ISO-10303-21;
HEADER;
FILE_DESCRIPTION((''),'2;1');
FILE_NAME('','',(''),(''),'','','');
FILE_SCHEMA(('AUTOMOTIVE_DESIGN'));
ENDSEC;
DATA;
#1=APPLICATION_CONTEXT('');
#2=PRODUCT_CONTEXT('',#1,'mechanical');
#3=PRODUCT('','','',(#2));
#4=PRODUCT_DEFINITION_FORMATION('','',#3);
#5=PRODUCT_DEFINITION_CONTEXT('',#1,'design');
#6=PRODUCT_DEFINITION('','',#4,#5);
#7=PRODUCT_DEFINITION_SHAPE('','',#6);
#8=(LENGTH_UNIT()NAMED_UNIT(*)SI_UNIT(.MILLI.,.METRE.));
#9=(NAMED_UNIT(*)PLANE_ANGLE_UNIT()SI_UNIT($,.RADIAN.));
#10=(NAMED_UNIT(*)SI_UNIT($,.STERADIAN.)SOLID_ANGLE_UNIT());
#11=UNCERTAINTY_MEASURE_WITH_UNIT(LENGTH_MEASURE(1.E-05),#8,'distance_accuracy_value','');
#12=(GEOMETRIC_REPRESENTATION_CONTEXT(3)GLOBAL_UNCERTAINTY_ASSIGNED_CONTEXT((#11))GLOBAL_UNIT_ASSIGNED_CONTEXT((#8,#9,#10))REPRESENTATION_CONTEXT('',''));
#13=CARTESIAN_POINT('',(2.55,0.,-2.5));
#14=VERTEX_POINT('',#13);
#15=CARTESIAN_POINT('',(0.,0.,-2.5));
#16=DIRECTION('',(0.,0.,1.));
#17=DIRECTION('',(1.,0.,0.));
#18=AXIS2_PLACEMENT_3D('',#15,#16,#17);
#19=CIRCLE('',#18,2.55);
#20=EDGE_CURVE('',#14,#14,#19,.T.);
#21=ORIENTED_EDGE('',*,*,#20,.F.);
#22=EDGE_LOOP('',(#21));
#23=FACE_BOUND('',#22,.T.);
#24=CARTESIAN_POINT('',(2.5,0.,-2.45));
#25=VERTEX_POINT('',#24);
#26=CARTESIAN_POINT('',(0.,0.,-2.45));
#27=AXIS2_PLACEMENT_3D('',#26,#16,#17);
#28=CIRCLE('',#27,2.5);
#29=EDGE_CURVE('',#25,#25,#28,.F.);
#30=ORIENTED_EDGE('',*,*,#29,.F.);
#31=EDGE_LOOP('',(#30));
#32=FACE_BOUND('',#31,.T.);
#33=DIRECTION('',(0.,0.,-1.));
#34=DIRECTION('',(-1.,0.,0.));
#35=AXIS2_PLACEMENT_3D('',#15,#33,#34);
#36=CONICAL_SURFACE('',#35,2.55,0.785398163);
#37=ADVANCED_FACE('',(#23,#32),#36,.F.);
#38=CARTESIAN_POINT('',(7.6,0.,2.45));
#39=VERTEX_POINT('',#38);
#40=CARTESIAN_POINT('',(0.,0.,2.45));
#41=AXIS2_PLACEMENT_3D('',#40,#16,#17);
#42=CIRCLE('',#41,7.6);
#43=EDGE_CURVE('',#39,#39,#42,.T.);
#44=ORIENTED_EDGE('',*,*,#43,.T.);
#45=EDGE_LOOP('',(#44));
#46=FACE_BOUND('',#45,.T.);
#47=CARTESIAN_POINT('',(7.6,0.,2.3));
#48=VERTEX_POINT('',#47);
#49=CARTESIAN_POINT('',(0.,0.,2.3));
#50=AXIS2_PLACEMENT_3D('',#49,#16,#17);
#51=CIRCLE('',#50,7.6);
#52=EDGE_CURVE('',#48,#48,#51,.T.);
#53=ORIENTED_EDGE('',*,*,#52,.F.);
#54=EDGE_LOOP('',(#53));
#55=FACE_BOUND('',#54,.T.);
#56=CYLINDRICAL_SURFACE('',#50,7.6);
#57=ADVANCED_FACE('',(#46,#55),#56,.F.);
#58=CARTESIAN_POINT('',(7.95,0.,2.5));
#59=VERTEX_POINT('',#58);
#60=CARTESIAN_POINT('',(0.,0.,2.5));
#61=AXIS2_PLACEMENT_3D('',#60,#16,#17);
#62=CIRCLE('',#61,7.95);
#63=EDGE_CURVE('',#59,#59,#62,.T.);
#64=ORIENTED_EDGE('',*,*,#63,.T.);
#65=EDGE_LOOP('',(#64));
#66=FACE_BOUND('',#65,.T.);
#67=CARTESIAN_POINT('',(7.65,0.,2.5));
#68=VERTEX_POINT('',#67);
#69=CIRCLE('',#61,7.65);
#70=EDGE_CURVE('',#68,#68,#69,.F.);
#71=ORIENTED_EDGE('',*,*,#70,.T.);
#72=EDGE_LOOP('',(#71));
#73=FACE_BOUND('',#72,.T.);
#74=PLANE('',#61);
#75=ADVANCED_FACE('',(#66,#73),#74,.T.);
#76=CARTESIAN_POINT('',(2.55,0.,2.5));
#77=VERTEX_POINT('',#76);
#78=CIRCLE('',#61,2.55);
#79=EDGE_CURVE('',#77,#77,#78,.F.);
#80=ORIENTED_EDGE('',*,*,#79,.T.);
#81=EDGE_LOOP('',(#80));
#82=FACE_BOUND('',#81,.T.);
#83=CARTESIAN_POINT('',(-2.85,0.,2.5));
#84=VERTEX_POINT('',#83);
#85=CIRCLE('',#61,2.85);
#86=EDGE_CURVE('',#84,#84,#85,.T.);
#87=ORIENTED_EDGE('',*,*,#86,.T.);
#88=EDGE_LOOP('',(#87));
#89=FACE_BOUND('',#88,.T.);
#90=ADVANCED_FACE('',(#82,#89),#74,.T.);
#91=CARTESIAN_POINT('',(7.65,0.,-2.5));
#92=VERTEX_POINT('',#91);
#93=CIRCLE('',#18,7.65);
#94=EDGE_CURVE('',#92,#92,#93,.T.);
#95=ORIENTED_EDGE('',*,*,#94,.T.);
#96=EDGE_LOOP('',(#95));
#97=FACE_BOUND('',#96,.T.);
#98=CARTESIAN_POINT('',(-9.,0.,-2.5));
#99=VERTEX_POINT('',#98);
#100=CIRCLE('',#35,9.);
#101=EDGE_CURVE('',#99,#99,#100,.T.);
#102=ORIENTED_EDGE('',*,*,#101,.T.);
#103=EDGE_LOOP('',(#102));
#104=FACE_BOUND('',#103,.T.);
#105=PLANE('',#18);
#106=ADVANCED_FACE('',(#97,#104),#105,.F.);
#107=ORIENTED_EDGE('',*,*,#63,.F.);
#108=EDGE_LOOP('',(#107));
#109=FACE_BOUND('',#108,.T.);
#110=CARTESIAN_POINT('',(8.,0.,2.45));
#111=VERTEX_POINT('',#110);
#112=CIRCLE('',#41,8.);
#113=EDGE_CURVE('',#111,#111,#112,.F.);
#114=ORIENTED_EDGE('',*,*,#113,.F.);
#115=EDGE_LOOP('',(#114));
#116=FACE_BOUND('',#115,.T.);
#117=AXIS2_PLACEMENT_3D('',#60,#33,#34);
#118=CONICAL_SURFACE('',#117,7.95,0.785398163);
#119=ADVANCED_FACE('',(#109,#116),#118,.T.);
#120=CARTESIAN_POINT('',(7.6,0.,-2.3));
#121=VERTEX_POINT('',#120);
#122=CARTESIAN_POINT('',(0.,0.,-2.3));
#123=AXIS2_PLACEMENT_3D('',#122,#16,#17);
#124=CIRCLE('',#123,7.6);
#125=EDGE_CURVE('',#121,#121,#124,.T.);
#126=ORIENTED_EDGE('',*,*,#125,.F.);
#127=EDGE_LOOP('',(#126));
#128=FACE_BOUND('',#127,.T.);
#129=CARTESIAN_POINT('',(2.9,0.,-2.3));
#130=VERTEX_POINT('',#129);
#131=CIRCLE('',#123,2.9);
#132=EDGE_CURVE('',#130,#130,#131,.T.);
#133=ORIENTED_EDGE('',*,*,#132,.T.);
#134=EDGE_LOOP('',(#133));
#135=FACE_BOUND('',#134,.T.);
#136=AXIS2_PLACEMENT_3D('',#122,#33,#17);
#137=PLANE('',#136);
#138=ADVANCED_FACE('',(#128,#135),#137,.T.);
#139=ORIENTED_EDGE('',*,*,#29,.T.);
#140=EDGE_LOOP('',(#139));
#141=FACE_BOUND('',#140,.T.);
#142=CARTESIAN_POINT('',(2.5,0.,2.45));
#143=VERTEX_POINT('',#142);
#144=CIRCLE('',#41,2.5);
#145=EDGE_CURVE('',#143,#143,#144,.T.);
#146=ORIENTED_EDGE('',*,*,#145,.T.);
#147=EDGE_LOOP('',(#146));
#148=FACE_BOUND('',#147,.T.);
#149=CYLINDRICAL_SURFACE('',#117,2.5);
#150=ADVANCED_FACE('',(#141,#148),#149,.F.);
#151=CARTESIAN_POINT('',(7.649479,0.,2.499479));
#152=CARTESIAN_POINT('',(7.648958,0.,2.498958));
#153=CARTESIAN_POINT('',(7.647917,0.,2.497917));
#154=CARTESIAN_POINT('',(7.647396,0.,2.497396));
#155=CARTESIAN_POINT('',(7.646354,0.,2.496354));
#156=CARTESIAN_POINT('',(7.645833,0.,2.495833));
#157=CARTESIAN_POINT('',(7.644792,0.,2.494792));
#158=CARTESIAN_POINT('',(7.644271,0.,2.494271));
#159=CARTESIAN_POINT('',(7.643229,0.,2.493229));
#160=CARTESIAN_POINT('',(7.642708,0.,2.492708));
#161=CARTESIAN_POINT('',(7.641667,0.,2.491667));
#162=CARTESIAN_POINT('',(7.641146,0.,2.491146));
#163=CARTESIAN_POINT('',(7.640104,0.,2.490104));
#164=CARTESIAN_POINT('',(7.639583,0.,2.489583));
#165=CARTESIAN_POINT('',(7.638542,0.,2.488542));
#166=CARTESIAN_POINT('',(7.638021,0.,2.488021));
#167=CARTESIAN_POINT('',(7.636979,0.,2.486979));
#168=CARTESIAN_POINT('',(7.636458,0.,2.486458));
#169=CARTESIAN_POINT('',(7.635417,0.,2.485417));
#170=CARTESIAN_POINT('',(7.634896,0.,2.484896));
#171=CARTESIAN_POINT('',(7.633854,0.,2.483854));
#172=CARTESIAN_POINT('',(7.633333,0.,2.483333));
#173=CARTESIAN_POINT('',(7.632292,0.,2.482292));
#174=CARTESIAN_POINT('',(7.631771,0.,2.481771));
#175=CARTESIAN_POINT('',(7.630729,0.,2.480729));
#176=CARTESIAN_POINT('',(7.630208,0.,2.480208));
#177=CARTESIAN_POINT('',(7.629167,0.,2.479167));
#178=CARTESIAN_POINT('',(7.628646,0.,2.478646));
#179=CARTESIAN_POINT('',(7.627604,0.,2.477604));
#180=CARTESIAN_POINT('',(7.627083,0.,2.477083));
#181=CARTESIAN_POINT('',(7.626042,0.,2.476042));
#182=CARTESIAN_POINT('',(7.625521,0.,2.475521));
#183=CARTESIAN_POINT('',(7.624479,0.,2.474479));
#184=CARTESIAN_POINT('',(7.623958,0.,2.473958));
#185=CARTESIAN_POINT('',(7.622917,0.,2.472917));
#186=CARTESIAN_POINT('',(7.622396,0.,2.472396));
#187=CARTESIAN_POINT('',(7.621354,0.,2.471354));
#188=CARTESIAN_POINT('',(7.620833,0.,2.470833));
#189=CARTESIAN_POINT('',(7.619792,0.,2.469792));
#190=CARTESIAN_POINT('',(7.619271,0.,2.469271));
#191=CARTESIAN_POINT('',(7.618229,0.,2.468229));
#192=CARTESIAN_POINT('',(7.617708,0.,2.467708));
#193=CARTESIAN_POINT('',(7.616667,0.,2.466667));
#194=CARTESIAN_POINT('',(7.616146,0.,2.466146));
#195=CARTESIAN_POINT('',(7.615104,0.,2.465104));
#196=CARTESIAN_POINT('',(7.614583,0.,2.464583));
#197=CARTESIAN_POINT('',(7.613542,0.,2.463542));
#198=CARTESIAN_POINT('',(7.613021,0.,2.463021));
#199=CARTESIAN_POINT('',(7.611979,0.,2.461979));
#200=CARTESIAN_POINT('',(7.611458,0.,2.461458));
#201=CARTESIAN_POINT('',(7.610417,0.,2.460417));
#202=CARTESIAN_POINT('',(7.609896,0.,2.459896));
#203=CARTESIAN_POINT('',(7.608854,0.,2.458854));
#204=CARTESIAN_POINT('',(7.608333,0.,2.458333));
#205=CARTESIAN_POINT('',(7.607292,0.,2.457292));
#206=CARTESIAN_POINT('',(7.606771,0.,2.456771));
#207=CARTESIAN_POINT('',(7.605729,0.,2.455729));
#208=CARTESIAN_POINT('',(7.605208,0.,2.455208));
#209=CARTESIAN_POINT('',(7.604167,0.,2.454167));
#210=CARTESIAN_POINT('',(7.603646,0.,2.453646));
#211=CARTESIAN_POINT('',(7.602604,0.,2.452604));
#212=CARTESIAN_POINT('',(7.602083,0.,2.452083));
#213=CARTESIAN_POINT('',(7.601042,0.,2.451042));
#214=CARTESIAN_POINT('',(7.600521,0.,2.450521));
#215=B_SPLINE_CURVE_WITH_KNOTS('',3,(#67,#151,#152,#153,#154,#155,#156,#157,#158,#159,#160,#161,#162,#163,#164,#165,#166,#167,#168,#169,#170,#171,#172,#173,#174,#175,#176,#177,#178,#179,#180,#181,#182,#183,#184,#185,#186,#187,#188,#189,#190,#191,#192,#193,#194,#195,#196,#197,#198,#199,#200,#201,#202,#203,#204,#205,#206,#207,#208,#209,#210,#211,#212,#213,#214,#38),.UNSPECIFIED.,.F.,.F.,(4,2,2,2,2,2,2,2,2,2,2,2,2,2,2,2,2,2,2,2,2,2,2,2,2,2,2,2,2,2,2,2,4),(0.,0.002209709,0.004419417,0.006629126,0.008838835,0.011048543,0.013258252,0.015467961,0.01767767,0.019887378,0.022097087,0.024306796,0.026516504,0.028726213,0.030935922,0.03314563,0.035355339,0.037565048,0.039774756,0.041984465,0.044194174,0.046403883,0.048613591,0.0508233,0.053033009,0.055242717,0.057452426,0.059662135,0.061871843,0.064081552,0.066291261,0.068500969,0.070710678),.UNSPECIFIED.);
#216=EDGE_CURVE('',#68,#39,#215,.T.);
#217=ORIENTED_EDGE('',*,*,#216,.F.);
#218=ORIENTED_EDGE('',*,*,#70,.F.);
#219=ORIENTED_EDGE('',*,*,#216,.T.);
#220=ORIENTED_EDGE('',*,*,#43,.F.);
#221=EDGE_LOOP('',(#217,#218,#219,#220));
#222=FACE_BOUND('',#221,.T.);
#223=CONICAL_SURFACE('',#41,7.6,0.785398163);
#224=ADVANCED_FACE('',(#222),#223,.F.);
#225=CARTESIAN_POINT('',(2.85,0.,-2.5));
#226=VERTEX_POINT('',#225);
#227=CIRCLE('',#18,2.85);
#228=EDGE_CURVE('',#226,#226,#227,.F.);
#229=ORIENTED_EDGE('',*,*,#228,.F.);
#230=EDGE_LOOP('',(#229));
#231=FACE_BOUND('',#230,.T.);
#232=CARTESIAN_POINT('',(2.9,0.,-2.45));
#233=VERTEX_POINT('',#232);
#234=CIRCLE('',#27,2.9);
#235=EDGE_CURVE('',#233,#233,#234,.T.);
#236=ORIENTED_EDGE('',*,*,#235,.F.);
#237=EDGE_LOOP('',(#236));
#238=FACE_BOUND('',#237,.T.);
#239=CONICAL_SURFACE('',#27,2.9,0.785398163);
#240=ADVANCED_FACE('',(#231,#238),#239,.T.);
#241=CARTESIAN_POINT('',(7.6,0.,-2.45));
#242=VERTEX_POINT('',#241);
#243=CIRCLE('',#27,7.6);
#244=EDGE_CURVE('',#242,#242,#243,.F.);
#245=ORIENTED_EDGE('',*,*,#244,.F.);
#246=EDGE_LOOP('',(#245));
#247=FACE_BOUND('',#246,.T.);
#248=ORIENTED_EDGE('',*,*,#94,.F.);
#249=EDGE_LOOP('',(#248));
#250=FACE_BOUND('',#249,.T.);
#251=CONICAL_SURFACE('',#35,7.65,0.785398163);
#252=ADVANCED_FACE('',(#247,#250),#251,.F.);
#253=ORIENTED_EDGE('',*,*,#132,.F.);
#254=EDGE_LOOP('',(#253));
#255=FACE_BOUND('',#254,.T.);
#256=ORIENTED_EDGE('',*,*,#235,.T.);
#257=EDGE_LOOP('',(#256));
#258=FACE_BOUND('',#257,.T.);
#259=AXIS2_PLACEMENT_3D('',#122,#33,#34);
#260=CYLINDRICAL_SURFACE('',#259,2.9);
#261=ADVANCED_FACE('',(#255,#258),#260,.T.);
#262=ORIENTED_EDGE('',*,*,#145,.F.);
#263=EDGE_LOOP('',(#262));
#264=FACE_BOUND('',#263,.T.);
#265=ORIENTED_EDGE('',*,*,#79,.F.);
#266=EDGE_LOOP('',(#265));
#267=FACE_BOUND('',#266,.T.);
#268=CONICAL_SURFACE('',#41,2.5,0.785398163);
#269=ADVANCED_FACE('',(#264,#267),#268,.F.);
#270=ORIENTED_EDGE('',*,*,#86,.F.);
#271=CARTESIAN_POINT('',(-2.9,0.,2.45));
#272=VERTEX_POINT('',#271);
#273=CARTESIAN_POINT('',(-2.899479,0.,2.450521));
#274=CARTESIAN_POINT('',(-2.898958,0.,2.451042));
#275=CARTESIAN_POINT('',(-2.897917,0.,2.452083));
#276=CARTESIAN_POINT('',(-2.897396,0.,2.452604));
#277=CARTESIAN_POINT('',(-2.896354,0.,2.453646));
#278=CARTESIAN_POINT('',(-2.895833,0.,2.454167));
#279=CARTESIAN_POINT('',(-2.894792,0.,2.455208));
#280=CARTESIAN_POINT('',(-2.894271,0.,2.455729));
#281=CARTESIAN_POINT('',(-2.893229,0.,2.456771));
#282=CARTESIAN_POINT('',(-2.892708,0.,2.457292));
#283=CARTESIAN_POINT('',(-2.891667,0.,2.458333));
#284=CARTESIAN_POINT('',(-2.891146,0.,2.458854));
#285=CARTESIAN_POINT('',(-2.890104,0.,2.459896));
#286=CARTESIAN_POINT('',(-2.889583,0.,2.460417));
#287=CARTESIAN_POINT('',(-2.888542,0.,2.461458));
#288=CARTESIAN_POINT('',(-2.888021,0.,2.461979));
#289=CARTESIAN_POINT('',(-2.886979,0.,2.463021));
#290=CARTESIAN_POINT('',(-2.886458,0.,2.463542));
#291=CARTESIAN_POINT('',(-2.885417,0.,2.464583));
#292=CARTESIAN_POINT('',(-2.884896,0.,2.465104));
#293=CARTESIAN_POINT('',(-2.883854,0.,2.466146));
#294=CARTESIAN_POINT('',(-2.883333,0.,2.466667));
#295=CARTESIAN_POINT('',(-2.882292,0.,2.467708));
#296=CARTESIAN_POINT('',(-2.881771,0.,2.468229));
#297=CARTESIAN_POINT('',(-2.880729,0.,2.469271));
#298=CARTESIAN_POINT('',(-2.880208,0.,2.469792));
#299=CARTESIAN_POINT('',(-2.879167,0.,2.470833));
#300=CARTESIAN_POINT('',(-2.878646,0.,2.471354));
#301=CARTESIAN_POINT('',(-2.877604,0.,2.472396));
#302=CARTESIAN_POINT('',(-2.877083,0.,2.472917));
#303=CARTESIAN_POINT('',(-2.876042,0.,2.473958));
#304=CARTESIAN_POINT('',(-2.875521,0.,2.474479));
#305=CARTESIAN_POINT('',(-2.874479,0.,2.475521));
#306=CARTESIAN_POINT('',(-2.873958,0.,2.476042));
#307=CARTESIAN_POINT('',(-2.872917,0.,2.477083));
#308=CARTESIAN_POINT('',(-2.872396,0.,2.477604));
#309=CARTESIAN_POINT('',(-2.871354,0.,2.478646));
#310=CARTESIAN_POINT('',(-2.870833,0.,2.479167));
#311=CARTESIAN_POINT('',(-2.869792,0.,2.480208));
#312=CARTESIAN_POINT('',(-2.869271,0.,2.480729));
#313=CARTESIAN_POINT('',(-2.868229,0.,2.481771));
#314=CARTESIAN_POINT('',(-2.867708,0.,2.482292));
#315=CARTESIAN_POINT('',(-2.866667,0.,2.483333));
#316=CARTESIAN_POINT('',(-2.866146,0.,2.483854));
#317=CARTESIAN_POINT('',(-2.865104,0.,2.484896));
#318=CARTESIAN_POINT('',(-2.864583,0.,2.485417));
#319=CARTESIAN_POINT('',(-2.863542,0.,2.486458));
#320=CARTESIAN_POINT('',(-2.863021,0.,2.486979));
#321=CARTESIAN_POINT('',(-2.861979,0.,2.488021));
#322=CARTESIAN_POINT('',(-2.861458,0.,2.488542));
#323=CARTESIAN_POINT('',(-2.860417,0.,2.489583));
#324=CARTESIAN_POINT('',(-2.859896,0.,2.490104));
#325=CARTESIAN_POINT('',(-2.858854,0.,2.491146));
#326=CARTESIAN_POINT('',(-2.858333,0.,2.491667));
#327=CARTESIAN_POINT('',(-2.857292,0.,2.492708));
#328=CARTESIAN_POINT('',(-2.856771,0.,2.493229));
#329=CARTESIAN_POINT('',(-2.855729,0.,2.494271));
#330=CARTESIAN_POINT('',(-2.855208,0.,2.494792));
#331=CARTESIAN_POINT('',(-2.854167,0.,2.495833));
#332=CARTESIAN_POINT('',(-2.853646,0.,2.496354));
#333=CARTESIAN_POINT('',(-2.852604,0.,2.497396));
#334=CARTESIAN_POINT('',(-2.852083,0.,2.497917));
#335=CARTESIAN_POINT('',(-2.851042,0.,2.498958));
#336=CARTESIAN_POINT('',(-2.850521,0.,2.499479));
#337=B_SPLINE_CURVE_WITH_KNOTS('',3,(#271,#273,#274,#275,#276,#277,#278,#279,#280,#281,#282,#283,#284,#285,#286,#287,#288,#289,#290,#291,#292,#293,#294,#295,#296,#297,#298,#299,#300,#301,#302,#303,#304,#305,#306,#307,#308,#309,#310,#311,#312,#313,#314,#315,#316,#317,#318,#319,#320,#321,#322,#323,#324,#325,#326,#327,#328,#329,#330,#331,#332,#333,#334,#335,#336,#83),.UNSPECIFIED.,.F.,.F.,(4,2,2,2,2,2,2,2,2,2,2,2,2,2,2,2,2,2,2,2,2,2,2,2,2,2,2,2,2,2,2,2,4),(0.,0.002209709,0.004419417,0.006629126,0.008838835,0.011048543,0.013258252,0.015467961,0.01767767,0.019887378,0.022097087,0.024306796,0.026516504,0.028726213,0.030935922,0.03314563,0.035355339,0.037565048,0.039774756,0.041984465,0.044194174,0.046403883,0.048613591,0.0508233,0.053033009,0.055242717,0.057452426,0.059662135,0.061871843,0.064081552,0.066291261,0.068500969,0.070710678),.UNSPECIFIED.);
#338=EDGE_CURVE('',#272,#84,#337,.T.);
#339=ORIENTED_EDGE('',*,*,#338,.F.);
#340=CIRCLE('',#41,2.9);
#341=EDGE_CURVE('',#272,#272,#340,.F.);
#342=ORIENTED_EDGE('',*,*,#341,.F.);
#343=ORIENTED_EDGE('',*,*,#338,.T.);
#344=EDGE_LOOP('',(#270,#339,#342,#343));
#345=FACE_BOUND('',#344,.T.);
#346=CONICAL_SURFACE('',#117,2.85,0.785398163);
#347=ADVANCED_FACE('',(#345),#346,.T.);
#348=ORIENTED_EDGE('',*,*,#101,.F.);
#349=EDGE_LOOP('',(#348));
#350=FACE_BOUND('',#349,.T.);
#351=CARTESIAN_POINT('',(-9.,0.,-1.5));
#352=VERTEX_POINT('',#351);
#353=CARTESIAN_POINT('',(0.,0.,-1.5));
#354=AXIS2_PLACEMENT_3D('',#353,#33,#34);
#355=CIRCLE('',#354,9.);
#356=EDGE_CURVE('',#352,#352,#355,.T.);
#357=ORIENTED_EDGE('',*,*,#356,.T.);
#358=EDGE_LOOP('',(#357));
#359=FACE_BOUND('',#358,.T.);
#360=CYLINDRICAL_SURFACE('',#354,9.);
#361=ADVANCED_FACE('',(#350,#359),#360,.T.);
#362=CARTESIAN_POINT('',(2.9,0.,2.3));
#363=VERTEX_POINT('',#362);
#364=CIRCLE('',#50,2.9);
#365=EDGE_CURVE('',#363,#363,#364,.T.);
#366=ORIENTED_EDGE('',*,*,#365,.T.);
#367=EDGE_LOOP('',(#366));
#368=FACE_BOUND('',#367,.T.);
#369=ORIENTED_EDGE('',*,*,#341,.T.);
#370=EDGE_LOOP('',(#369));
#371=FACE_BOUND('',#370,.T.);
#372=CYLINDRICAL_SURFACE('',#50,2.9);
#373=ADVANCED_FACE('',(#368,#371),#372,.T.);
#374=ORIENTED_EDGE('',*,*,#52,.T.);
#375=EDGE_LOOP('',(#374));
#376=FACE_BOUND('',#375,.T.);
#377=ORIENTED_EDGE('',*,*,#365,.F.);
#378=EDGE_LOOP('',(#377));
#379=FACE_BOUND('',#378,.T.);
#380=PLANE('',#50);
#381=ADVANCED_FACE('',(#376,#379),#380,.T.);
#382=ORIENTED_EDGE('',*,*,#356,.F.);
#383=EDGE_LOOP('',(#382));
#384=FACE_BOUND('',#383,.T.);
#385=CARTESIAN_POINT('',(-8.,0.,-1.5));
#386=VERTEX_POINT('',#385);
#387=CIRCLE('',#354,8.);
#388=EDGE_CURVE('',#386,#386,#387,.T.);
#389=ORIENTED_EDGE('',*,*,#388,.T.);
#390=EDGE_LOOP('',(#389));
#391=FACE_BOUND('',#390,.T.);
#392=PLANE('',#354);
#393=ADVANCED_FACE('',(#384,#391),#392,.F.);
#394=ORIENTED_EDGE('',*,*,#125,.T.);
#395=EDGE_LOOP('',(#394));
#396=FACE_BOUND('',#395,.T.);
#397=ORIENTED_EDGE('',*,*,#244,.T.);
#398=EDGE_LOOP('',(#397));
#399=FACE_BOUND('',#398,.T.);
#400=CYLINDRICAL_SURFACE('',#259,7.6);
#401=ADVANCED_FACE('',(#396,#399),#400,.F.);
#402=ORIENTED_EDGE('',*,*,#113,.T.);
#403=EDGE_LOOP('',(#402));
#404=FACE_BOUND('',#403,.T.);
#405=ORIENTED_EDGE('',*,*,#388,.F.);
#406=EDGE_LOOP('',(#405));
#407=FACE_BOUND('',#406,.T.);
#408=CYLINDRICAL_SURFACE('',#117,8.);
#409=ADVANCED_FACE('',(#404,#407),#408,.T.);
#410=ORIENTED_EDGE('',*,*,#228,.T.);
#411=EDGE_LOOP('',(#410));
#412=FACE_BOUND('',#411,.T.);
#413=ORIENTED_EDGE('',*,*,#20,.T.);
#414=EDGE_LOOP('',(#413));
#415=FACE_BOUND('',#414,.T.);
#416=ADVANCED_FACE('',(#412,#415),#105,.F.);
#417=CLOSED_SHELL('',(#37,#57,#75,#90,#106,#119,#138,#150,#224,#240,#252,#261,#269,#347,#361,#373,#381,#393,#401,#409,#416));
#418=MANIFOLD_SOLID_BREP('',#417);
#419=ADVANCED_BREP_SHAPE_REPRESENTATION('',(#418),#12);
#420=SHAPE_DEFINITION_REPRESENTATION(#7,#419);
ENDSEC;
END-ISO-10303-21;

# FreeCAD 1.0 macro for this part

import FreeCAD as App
import Part
import Sketcher
Q = App.Units.Quantity


def edges_at(feature, points):
    """Names of the edges that pass closest to the given points."""
    edges = feature.Shape.Edges
    near = lambda p: min(range(len(edges)), key=lambda i: edges[i].distToShape(Part.Vertex(*p))[0])
    return sorted({f"Edge{near(p) + 1}" for p in points})

doc = App.newDocument("Part")
body = doc.addObject("PartDesign::Body", "Body")

sketch1 = body.newObject("Sketcher::SketchObject", "Sketch")
sketch1.AttachmentSupport = (doc.getObject("XY_Plane"), [""])
sketch1.MapMode = "FlatFace"
sketch1.addGeometry(Part.Circle(App.Vector(0, 0, 0), App.Vector(0, 0, 1), 8), False)
sketch1.addGeometry(Part.Circle(App.Vector(0, 0, 0), App.Vector(0, 0, 1), 2.5), False)
sketch1.addConstraint(Sketcher.Constraint("Coincident", 0, 3, -1, 1))
sketch1.addConstraint(Sketcher.Constraint("Coincident", 1, 3, -1, 1))
sketch1.addConstraint(Sketcher.Constraint("Diameter", 0, Q("16 mm")))
sketch1.addConstraint(Sketcher.Constraint("Diameter", 1, Q("5 mm")))
pad1 = body.newObject("PartDesign::Pad", "Pad")
pad1.Profile = sketch1
pad1.Length = 5
pad1.Midplane = True

sketch2 = body.newObject("Sketcher::SketchObject", "Sketch001")
sketch2.AttachmentSupport = (doc.getObject("XY_Plane"), [""])
sketch2.MapMode = "FlatFace"
sketch2.AttachmentOffset = App.Placement(App.Vector(0, 0, -2.5), App.Rotation())
sketch2.addGeometry(Part.Circle(App.Vector(0, 0, 0), App.Vector(0, 0, 1), 9), False)
sketch2.addGeometry(Part.Circle(App.Vector(0, 0, 0), App.Vector(0, 0, 1), 2.5), False)
sketch2.addConstraint(Sketcher.Constraint("Coincident", 0, 3, -1, 1))
sketch2.addConstraint(Sketcher.Constraint("Coincident", 1, 3, -1, 1))
sketch2.addConstraint(Sketcher.Constraint("Diameter", 0, Q("18 mm")))
sketch2.addConstraint(Sketcher.Constraint("Diameter", 1, Q("5 mm")))
pad2 = body.newObject("PartDesign::Pad", "Pad001")
pad2.Profile = sketch2
pad2.Length = 1

sketch3 = body.newObject("Sketcher::SketchObject", "Sketch002")
sketch3.AttachmentSupport = (doc.getObject("XY_Plane"), [""])
sketch3.MapMode = "FlatFace"
sketch3.AttachmentOffset = App.Placement(App.Vector(0, 0, 2.5), App.Rotation())
sketch3.addGeometry(Part.Circle(App.Vector(0, 0, 0), App.Vector(0, 0, 1), 7.6), False)
sketch3.addGeometry(Part.Circle(App.Vector(0, 0, 0), App.Vector(0, 0, 1), 2.9), False)
sketch3.addConstraint(Sketcher.Constraint("Coincident", 0, 3, -1, 1))
sketch3.addConstraint(Sketcher.Constraint("Coincident", 1, 3, -1, 1))
sketch3.addConstraint(Sketcher.Constraint("Diameter", 0, Q("15.2 mm")))
sketch3.addConstraint(Sketcher.Constraint("Diameter", 1, Q("5.8 mm")))
pocket1 = body.newObject("PartDesign::Pocket", "Pocket")
pocket1.Profile = sketch3
pocket1.Length = 0.2
doc.recompute()

mirrored = body.newObject("PartDesign::Mirrored", "Mirrored")
mirrored.Originals = [pocket1]
mirrored.MirrorPlane = (doc.getObject("XY_Plane"), [""])
body.Tip = mirrored
doc.recompute()

chamfer = body.newObject("PartDesign::Chamfer", "Chamfer")
chamfer.Base = (mirrored, edges_at(mirrored, [
    (-7.6, 0, 2.5),
    (-2.9, 0, 2.5),
    (-2.9, 0, -2.5),
    (-7.6, 0, -2.5),
    (-8, 0, 2.5),
    (-2.5, 0, -2.5),
    (-2.5, 0, 2.5),
]))
chamfer.Size = 0.05

doc.recompute()
